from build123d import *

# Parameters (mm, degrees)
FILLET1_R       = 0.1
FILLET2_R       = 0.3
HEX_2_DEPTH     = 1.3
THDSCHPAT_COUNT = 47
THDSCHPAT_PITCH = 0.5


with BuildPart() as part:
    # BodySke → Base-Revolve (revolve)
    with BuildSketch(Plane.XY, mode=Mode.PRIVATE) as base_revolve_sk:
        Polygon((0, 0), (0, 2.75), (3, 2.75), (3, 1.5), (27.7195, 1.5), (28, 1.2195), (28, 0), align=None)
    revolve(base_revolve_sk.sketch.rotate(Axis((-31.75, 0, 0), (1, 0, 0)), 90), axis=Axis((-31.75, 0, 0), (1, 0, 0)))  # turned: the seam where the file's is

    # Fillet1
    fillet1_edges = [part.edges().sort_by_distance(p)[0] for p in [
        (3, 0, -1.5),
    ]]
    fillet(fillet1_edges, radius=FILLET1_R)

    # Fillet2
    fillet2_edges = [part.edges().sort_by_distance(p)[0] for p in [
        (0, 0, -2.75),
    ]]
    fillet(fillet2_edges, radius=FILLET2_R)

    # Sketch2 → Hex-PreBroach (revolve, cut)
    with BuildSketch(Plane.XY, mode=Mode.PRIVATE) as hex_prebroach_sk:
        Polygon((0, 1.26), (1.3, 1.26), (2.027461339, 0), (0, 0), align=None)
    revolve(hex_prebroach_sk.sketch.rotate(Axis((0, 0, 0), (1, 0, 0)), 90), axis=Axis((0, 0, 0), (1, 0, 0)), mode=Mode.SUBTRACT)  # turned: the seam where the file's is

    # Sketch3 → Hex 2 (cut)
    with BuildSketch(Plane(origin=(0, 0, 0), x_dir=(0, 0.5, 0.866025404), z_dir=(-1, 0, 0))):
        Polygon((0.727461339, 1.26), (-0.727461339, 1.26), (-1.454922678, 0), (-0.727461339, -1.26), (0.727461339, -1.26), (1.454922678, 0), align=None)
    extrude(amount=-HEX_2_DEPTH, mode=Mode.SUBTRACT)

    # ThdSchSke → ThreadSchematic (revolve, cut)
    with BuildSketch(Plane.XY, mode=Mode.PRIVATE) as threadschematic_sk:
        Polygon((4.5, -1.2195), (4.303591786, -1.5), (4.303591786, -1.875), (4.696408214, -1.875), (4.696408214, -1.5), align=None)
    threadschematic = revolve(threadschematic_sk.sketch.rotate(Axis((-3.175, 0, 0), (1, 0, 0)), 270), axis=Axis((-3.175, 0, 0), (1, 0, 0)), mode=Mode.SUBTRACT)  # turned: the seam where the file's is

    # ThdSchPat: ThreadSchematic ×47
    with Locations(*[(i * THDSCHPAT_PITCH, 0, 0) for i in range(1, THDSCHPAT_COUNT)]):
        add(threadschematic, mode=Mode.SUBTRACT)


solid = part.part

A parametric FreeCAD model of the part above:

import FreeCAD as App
import Part
import Sketcher

V = App.Vector
Q = App.Units.Quantity


def edges_at(feature, points):
    """Names of the edges that pass closest to the given points."""
    edges = feature.Shape.Edges
    near = lambda p: min(range(len(edges)), key=lambda i: edges[i].distToShape(Part.Vertex(*p))[0])
    return sorted({f"Edge{near(p) + 1}" for p in points})


def add_polygon(sketch, points):
    """Adds a closed chain of lines whose ends are joined by coincident constraints."""
    first, n = sketch.GeometryCount, len(points)
    for a, b in zip(points, points[1:] + points[:1]):
        sketch.addGeometry(Part.LineSegment(App.Vector(*a, 0), App.Vector(*b, 0)), False)
    for i in range(n):
        sketch.addConstraint(Sketcher.Constraint("Coincident", first + i, 2, first + (i + 1) % n, 1))

doc = App.newDocument("Part")
body = doc.addObject("PartDesign::Body", "Body")

sketch1 = doc.addObject("Sketcher::SketchObject", "Sketch")
body.addObject(sketch1)
sketch1.AttachmentSupport = (doc.XY_Plane, [""])
sketch1.MapMode = "FlatFace"
add_polygon(sketch1, [(0, 2.75), (0, 0), (28, 0), (28, 1.22), (27.72, 1.5), (3, 1.5), (3, 2.75)])
sketch1.addConstraint(Sketcher.Constraint("Vertical", 0))
sketch1.addConstraint(Sketcher.Constraint("Horizontal", 1))
sketch1.addConstraint(Sketcher.Constraint("Vertical", 2))
sketch1.addConstraint(Sketcher.Constraint("Horizontal", 4))
sketch1.addConstraint(Sketcher.Constraint("Vertical", 5))
sketch1.addConstraint(Sketcher.Constraint("Horizontal", 6))
sketch1.addConstraint(Sketcher.Constraint("Coincident", 0, 2, -1, 1))
sketch1.addConstraint(Sketcher.Constraint("DistanceX", 1, 1, 1, 2, 28.0))
sketch1.addConstraint(Sketcher.Constraint("DistanceX", 6, 2, 6, 1, 3.0))
sketch1.addConstraint(Sketcher.Constraint("Angle", 3, Q("135 deg")))
sketch1.addConstraint(Sketcher.Constraint("DistanceY", 0, 2, 0, 1, 2.75))
sketch1.addConstraint(Sketcher.Constraint("DistanceY", 5, 1, 5, 2, 1.25))
sketch1.addConstraint(Sketcher.Constraint("DistanceX", 4, 2, 4, 1, 24.7195))
revolution = doc.addObject("PartDesign::Revolution", "Revolution")
body.addObject(revolution)
revolution.Profile = sketch1
revolution.ReferenceAxis = (sketch1, ["H_Axis"])
revolution.Angle = 360
doc.recompute()

fillet = doc.addObject("PartDesign::Fillet", "Fillet")
body.addObject(fillet)
fillet.Base = (revolution, edges_at(revolution, [(3, 0, -1.5)]))
fillet.Radius = 0.1
doc.recompute()

fillet2 = doc.addObject("PartDesign::Fillet", "Fillet001")
body.addObject(fillet2)
fillet2.Base = (fillet, edges_at(fillet, [(0, 0, -2.75)]))
fillet2.Radius = 0.3

sketch2 = doc.addObject("Sketcher::SketchObject", "Sketch001")
body.addObject(sketch2)
sketch2.AttachmentSupport = (doc.XY_Plane, [""])
sketch2.MapMode = "FlatFace"
add_polygon(sketch2, [(1.3, 1.3), (0, 1.3), (0, 0), (2, 0)])
sketch2.addConstraint(Sketcher.Constraint("Horizontal", 0))
sketch2.addConstraint(Sketcher.Constraint("Vertical", 1))
sketch2.addConstraint(Sketcher.Constraint("Horizontal", 2))
sketch2.addConstraint(Sketcher.Constraint("Coincident", 1, 2, -1, 1))
sketch2.addConstraint(Sketcher.Constraint("Angle", 3, Q("120 deg")))
sketch2.addConstraint(Sketcher.Constraint("DistanceX", 0, 2, 0, 1, 1.3))
sketch2.addConstraint(Sketcher.Constraint("DistanceY", 1, 2, 1, 1, 1.26))
groove = doc.addObject("PartDesign::Groove", "Groove")
body.addObject(groove)
groove.Profile = sketch2
groove.ReferenceAxis = (sketch2, ["H_Axis"])
groove.Angle = 360

sketch3 = doc.addObject("Sketcher::SketchObject", "Sketch002")
body.addObject(sketch3)
sketch3.AttachmentSupport = (doc.YZ_Plane, [""])
sketch3.MapMode = "FlatFace"
add_polygon(sketch3, [(1.5, 0), (0.7, -1.3), (-0.7, -1.3), (-1.5, 0), (-0.7, 1.3), (0.7, 1.3)])
sketch3.addConstraint(Sketcher.Constraint("Horizontal", 1))
sketch3.addConstraint(Sketcher.Constraint("Horizontal", 4))
sketch3.addConstraint(Sketcher.Constraint("Symmetric", 0, 2, 3, 2, -1, 1))
sketch3.addConstraint(Sketcher.Constraint("Symmetric", 2, 2, 5, 2, -1, 1))
sketch3.addConstraint(Sketcher.Constraint("PointOnObject", 2, 2, -1))
sketch3.addConstraint(Sketcher.Constraint("Parallel", 2, 5))
sketch3.addConstraint(Sketcher.Constraint("Vertical", 1, 2, 3, 2))
sketch3.addConstraint(Sketcher.Constraint("Angle", 0, Q("-120 deg")))
sketch3.addConstraint(Sketcher.Constraint("DistanceY", 0, 2, -1, 1, 1.26))
sketch3.addConstraint(Sketcher.Constraint("DistanceX", 1, 2, 1, 1, 1.454923))
pocket1 = doc.addObject("PartDesign::Pocket", "Pocket")
body.addObject(pocket1)
pocket1.Profile = sketch3
pocket1.Length = 1.3
pocket1.Reversed = True

sketch4 = doc.addObject("Sketcher::SketchObject", "Sketch003")
body.addObject(sketch4)
sketch4.AttachmentSupport = (doc.XY_Plane, [""])
sketch4.MapMode = "FlatFace"
add_polygon(sketch4, [(4.5, -1.22), (4.3, -1.5), (4.3, -1.88), (4.7, -1.88), (4.7, -1.5)])
sketch4.addConstraint(Sketcher.Constraint("Vertical", 1))
sketch4.addConstraint(Sketcher.Constraint("Horizontal", 2))
sketch4.addConstraint(Sketcher.Constraint("Vertical", 3))
sketch4.addConstraint(Sketcher.Constraint("Horizontal", 0, 2, 3, 2))
sketch4.addConstraint(Sketcher.Constraint("Equal", 0, 4))
sketch4.addConstraint(Sketcher.Constraint("Angle", 0, Q("-125 deg")))
sketch4.addConstraint(Sketcher.Constraint("DistanceY", 0, 2, -1, 1, 1.5))
sketch4.addConstraint(Sketcher.Constraint("DistanceX", -1, 1, 4, 2, 4.5))
sketch4.addConstraint(Sketcher.Constraint("DistanceY", 1, 2, 1, 1, 0.375))
sketch4.addConstraint(Sketcher.Constraint("DistanceY", 4, 2, -1, 1, 1.2195))
groove2 = doc.addObject("PartDesign::Groove", "Groove001")
body.addObject(groove2)
groove2.Profile = sketch4
groove2.ReferenceAxis = (sketch4, ["H_Axis"])
groove2.Angle = 360
doc.recompute()

linearpattern = doc.addObject("PartDesign::LinearPattern", "LinearPattern")
body.addObject(linearpattern)
linearpattern.Originals = [groove2]
linearpattern.Direction = (doc.X_Axis, [""])
linearpattern.Mode = "offset"
linearpattern.Offset = 0.5
linearpattern.Occurrences = 47
body.Tip = linearpattern

doc.recompute()
